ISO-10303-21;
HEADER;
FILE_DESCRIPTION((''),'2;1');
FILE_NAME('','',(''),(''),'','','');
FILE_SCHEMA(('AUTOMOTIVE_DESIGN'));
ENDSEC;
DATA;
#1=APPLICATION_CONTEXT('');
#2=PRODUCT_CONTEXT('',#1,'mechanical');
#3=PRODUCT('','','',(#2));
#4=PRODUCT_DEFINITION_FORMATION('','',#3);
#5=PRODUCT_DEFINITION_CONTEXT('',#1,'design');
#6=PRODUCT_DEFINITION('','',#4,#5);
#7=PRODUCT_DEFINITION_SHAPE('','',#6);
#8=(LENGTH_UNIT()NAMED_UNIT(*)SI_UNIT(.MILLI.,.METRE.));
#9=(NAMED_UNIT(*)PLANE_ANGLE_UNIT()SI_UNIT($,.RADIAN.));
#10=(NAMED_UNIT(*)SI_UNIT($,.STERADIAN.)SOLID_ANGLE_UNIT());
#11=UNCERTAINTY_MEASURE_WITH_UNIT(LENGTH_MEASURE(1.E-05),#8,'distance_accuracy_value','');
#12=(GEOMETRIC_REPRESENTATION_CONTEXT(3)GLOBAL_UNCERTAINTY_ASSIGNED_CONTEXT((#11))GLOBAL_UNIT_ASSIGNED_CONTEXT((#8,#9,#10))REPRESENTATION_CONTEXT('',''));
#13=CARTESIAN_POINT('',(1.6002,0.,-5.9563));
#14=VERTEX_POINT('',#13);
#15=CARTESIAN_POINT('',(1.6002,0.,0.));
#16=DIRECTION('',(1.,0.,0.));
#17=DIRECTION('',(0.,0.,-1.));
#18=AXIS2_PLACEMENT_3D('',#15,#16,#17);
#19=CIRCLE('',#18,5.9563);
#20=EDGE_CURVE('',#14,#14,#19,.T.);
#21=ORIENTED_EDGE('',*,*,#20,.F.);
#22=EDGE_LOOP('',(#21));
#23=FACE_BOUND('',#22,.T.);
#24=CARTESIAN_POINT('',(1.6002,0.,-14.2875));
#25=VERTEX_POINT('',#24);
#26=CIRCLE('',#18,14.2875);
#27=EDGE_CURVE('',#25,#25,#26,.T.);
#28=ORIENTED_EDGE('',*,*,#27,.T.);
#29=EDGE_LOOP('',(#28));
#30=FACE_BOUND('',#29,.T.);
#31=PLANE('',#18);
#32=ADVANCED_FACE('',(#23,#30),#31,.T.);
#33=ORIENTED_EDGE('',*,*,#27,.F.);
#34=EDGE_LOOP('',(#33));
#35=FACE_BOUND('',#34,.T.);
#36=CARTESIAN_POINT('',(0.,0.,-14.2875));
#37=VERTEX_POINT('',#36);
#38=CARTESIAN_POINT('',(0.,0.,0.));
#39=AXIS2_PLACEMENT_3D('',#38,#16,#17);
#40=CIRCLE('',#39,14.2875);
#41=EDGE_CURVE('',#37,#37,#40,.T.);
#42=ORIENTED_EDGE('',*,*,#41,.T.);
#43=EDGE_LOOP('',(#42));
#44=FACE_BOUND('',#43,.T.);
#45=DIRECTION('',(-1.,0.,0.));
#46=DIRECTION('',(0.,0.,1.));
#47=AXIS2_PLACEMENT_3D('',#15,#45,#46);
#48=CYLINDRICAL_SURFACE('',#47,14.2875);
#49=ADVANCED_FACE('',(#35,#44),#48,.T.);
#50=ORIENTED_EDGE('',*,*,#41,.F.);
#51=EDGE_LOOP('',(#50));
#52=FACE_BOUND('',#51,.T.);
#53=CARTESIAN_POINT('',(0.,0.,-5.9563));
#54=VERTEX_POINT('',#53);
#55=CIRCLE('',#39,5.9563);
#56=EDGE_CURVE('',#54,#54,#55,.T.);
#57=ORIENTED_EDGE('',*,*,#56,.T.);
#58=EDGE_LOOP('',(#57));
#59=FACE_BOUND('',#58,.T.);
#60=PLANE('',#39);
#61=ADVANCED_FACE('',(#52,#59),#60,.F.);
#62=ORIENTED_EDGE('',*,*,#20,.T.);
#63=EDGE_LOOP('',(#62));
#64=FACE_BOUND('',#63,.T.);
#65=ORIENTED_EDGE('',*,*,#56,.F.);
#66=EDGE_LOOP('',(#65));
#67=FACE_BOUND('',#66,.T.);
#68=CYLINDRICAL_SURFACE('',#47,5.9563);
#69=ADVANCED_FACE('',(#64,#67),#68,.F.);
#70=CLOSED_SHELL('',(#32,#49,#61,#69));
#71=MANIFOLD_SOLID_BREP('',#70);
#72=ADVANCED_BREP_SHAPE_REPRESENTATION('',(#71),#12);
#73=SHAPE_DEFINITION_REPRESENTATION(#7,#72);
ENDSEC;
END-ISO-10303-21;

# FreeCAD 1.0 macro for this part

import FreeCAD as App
import Part
import Sketcher
from FreeCAD import Vector
Q = App.Units.Quantity

doc = App.newDocument("Part")
body = doc.addObject("PartDesign::Body", "Body")

# Sketch on YZ plane
sketch1 = body.newObject("Sketcher::SketchObject", "Sketch")
sketch1.AttachmentSupport = (doc.getObject("YZ_Plane"), [""])
sketch1.MapMode = "FlatFace"
sketch1.addGeometry(Part.Circle(Vector(0, 0, 0), Vector(0, 0, 1), 14), False)
sketch1.addGeometry(Part.Circle(Vector(0, 0, 0), Vector(0, 0, 1), 6), False)
sketch1.addConstraint(Sketcher.Constraint("Coincident", 0, 3, -1, 1))
sketch1.addConstraint(Sketcher.Constraint("Coincident", 1, 3, -1, 1))
sketch1.addConstraint(Sketcher.Constraint("Diameter", 0, Q("1.125 in")))
sketch1.addConstraint(Sketcher.Constraint("Diameter", 1, Q("0.469 in")))
pad1 = body.newObject("PartDesign::Pad", "Pad")
pad1.Profile = sketch1
pad1.Length = Q("0.063 in")

doc.recompute()
